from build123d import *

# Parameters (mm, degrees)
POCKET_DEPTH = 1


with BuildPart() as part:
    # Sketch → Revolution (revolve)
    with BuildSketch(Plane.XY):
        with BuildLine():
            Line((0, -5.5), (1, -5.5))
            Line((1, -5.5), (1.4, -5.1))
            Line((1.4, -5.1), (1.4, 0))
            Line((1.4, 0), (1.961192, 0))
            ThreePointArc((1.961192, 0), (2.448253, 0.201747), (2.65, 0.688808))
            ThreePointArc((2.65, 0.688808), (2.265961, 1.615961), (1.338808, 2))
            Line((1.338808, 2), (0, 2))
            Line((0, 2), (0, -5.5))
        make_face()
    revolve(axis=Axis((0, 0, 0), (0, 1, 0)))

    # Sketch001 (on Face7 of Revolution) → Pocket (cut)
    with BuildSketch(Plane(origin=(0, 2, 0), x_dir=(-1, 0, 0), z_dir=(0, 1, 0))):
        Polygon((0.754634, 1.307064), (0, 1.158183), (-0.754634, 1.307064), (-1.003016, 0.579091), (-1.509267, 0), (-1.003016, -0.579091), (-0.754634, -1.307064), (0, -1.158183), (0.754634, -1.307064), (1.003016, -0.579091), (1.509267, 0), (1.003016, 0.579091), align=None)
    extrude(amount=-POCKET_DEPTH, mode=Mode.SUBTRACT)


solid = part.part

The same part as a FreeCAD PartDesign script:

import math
import FreeCAD as App
import Part
import Sketcher

V = App.Vector
Q = App.Units.Quantity


def add_polygon(sketch, points):
    """Adds a closed chain of lines whose ends are joined by coincident constraints."""
    first, n = sketch.GeometryCount, len(points)
    for a, b in zip(points, points[1:] + points[:1]):
        sketch.addGeometry(Part.LineSegment(App.Vector(*a, 0), App.Vector(*b, 0)), False)
    for i in range(n):
        sketch.addConstraint(Sketcher.Constraint("Coincident", first + i, 2, first + (i + 1) % n, 1))

doc = App.newDocument("Part")
body = doc.addObject("PartDesign::Body", "Body")

sketch1 = body.newObject("Sketcher::SketchObject", "Sketch")
sketch1.AttachmentSupport = (doc.getObject("XY_Plane"), [""])
sketch1.MapMode = "FlatFace"
sketch1.addGeometry([
    Part.LineSegment(V(0, -5.5, 0), V(1, -5.5, 0)),
    Part.LineSegment(V(1, -5.5, 0), V(1.4, -5.1, 0)),
    Part.LineSegment(V(1.4, -5.1, 0), V(1.4, 0, 0)),
    Part.LineSegment(V(1.4, 0, 0), V(1.961192, 0, 0)),
    Part.ArcOfCircle(Part.Circle(V(1.961193, 0.688807, 0), V(0, 0, 1), 0.688807), math.radians(-90.000055), math.radians(0.000055)),
    Part.ArcOfCircle(Part.Circle(V(1.338809, 0.688809, 0), V(0, 0, 1), 1.311191), math.radians(-0.000037), math.radians(90.000037)),
    Part.LineSegment(V(1.338808, 2, 0), V(0, 2, 0)),
    Part.LineSegment(V(0, 2, 0), V(0, -5.5, 0)),
], False)
sketch1.addConstraint([
    Sketcher.Constraint("Coincident", 0, 2, 1, 1),
    Sketcher.Constraint("Coincident", 1, 2, 2, 1),
    Sketcher.Constraint("Coincident", 2, 2, 3, 1),
    Sketcher.Constraint("Tangent", 3, 2, 4, 1),
    Sketcher.Constraint("Tangent", 4, 2, 5, 1),
    Sketcher.Constraint("Tangent", 5, 2, 6, 1),
    Sketcher.Constraint("Coincident", 6, 2, 7, 1),
    Sketcher.Constraint("Coincident", 7, 2, 0, 1),
    Sketcher.Constraint("Horizontal", 0),
    Sketcher.Constraint("Vertical", 2),
    Sketcher.Constraint("Horizontal", 3),
    Sketcher.Constraint("Horizontal", 6),
    Sketcher.Constraint("Vertical", 7),
    Sketcher.Constraint("PointOnObject", 2, 2, -1),
    Sketcher.Constraint("PointOnObject", 6, 2, -2),
    Sketcher.Constraint("Horizontal", 4, 3, 5, 3),
    Sketcher.Constraint("DistanceX", 0, 1, 0, 2, 1.0),
    Sketcher.Constraint("Angle", 1, Q("45 deg")),
    Sketcher.Constraint("DistanceY", 2, 1, 2, 2, 5.1),
    Sketcher.Constraint("DistanceY", 7, 2, 7, 1, 7.5),
    Sketcher.Constraint("DistanceY", -1, 1, 5, 2, 2.0),
    Sketcher.Constraint("DistanceX", -1, 1, 4, 2, 2.65),
    Sketcher.Constraint("Radius", 5, 1.311191),
])
revolution = body.newObject("PartDesign::Revolution", "Revolution")
revolution.Profile = sketch1
revolution.ReferenceAxis = (sketch1, ["V_Axis"])
revolution.Angle = 360

sketch2 = body.newObject("Sketcher::SketchObject", "Sketch001")
sketch2.AttachmentSupport = (doc.getObject("XZ_Plane"), [""])
sketch2.MapMode = "FlatFace"
sketch2.AttachmentOffset = App.Placement(V(0, 0, -2), App.Rotation())
add_polygon(sketch2, [(-0.754634, 1.307064), (0, 1.158183), (0.754634, 1.307064), (1.003016, 0.579091), (1.509267, 0), (1.003016, -0.579091), (0.754634, -1.307064), (0, -1.158183), (-0.754634, -1.307064), (-1.003016, -0.579091), (-1.509267, 0), (-1.003016, 0.579091)])
sketch2.addConstraint([
    Sketcher.Constraint("Symmetric", 0, 2, 6, 2, -1, 1),
    Sketcher.Constraint("Symmetric", 1, 2, 7, 2, -1, 1),
    Sketcher.Constraint("Symmetric", 2, 2, 8, 2, -1, 1),
    Sketcher.Constraint("Symmetric", 3, 2, 9, 2, -1, 1),
    Sketcher.Constraint("Symmetric", 4, 2, 10, 2, -1, 1),
    Sketcher.Constraint("Symmetric", 5, 2, 11, 2, -1, 1),
    Sketcher.Constraint("Symmetric", 5, 2, 7, 2, -2),
    Sketcher.Constraint("Symmetric", 4, 2, 8, 2, -2),
    Sketcher.Constraint("PointOnObject", 0, 2, -2),
    Sketcher.Constraint("PointOnObject", 3, 2, -1),
    Sketcher.Constraint("Equal", 1, 2),
    Sketcher.Constraint("Equal", 2, 3),
    Sketcher.Constraint("Distance", 0, 0.76918),
    Sketcher.Constraint("DistanceY", -1, 1, 2, 2, 0.579091),
    Sketcher.Constraint("DistanceY", 0, 2, 1, 2, 0.148881),
    Sketcher.Constraint("DistanceX", 1, 2, 2, 2, 0.248382),
])
pocket1 = body.newObject("PartDesign::Pocket", "Pocket")
pocket1.Profile = sketch2
pocket1.Length = 1
pocket1.Reversed = True

doc.recompute()
